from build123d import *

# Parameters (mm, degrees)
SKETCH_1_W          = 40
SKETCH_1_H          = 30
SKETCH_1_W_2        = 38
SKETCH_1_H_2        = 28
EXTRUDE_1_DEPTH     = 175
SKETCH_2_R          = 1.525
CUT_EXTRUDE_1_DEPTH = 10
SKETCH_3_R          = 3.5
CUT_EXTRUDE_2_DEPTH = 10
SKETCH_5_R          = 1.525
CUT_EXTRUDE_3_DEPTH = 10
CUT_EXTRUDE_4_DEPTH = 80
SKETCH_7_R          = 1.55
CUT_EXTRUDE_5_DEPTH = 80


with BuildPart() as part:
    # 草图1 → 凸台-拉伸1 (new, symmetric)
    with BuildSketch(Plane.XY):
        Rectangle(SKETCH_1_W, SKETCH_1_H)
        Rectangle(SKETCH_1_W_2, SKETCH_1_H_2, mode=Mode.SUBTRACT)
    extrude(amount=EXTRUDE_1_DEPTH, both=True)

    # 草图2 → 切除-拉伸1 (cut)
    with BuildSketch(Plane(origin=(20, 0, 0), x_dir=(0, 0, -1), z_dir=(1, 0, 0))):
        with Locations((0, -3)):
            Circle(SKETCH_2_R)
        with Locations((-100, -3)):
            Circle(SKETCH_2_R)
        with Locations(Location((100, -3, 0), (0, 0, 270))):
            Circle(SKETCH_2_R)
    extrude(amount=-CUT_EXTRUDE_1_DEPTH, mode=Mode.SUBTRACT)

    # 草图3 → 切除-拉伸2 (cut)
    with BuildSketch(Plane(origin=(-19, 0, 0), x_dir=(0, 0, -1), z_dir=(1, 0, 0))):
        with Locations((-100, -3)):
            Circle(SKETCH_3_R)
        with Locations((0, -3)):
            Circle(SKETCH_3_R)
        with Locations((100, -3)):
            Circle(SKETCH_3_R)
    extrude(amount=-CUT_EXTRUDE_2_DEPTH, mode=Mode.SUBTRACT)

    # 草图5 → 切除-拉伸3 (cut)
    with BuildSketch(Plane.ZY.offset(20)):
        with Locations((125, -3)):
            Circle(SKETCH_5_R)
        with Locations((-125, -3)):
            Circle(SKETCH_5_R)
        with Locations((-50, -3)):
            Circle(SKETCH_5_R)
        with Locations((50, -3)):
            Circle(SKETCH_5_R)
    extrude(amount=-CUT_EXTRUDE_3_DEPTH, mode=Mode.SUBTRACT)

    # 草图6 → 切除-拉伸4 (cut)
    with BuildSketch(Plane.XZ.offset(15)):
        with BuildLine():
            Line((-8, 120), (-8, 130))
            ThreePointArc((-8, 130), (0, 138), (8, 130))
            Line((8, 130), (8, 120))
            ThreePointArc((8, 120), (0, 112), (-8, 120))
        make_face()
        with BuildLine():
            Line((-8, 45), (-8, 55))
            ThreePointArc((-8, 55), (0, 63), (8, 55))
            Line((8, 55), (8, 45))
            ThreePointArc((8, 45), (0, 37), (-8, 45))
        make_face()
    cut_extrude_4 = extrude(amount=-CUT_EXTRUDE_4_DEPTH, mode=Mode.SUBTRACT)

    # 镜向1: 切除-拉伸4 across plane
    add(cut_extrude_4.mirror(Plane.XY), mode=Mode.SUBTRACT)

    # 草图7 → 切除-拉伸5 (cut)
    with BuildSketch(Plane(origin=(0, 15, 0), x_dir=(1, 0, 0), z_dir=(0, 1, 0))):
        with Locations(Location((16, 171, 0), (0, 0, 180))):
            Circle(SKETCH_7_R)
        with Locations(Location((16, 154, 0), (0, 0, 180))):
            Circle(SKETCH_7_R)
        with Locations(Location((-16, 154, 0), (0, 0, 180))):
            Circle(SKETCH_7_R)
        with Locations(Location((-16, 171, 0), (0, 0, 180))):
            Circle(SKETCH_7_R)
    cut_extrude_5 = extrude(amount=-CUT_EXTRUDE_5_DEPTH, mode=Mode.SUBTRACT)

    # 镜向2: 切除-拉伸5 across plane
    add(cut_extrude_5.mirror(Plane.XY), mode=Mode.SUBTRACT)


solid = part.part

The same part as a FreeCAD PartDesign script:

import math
import FreeCAD as App
import Part
import Sketcher

V = App.Vector
Q = App.Units.Quantity


def add_polygon(sketch, points):
    """Adds a closed chain of lines whose ends are joined by coincident constraints."""
    first, n = sketch.GeometryCount, len(points)
    for a, b in zip(points, points[1:] + points[:1]):
        sketch.addGeometry(Part.LineSegment(App.Vector(*a, 0), App.Vector(*b, 0)), False)
    for i in range(n):
        sketch.addConstraint(Sketcher.Constraint("Coincident", first + i, 2, first + (i + 1) % n, 1))

doc = App.newDocument("Part")
body = doc.addObject("PartDesign::Body", "Body")

sketch1 = body.newObject("Sketcher::SketchObject", "Sketch")
sketch1.AttachmentSupport = (doc.getObject("XY_Plane"), [""])
sketch1.MapMode = "FlatFace"
add_polygon(sketch1, [(-20, 15), (-20, -15), (20, -15), (20, 15)])
add_polygon(sketch1, [(19, -14), (-19, -14), (-19, 14), (19, 14)])
sketch1.addConstraint([
    Sketcher.Constraint("Vertical", 0),
    Sketcher.Constraint("Horizontal", 1),
    Sketcher.Constraint("Vertical", 2),
    Sketcher.Constraint("Horizontal", 3),
    Sketcher.Constraint("Horizontal", 4),
    Sketcher.Constraint("Vertical", 5),
    Sketcher.Constraint("Horizontal", 6),
    Sketcher.Constraint("Vertical", 7),
    Sketcher.Constraint("Symmetric", 0, 2, 2, 2, -1, 1),
    Sketcher.Constraint("Symmetric", 4, 2, 6, 2, -1, 1),
    Sketcher.Constraint("DistanceX", 1, 1, 1, 2, Q("40 mm")),
    Sketcher.Constraint("DistanceX", 4, 2, 4, 1, Q("38 mm")),
    Sketcher.Constraint("DistanceY", 0, 2, 0, 1, Q("30 mm")),
    Sketcher.Constraint("DistanceY", 5, 1, 5, 2, Q("28 mm")),
])
pad1 = body.newObject("PartDesign::Pad", "Pad")
pad1.Profile = sketch1
pad1.Length = 350
pad1.Midplane = True

sketch2 = body.newObject("Sketcher::SketchObject", "Sketch001")
sketch2.AttachmentSupport = (doc.getObject("YZ_Plane"), [""])
sketch2.MapMode = "FlatFace"
sketch2.AttachmentOffset = App.Placement(V(0, 0, 20), App.Rotation())
sketch2.addGeometry([
    Part.Circle(V(-3, 0, 0), V(0, 0, 1), 1.5),
    Part.Circle(V(-3, 100, 0), V(0, 0, 1), 1.5),
    Part.Circle(V(-3, -100, 0), V(0, 0, 1), 1.5),
], False)
sketch2.addConstraint([
    Sketcher.Constraint("Equal", 0, 1),
    Sketcher.Constraint("Equal", 1, 2),
    Sketcher.Constraint("Symmetric", 1, 3, 2, 3, -1),
    Sketcher.Constraint("PointOnObject", 0, 3, -1),
    Sketcher.Constraint("Vertical", 0, 3, 1, 3),
    Sketcher.Constraint("Diameter", 0, Q("3.05 mm")),
    Sketcher.Constraint("DistanceX", 0, 3, -1, 1, Q("3 mm")),
    Sketcher.Constraint("DistanceY", -1, 1, 1, 3, Q("100 mm")),
])
pocket1 = body.newObject("PartDesign::Pocket", "Pocket")
pocket1.Profile = sketch2
pocket1.Length = 10

sketch3 = body.newObject("Sketcher::SketchObject", "Sketch002")
sketch3.AttachmentSupport = (doc.getObject("YZ_Plane"), [""])
sketch3.MapMode = "FlatFace"
sketch3.AttachmentOffset = App.Placement(V(0, 0, -19), App.Rotation())
sketch3.addGeometry([
    Part.Circle(V(-3, 100, 0), V(0, 0, 1), 3.5),
    Part.Circle(V(-3, 0, 0), V(0, 0, 1), 3.5),
    Part.Circle(V(-3, -100, 0), V(0, 0, 1), 3.5),
], False)
sketch3.addConstraint([
    Sketcher.Constraint("Equal", 0, 1),
    Sketcher.Constraint("Equal", 1, 2),
    Sketcher.Constraint("Symmetric", 0, 3, 2, 3, -1),
    Sketcher.Constraint("PointOnObject", 1, 3, -1),
    Sketcher.Constraint("Vertical", 0, 3, 1, 3),
    Sketcher.Constraint("Diameter", 0, Q("7 mm")),
    Sketcher.Constraint("DistanceX", 0, 3, -1, 1, Q("3 mm")),
    Sketcher.Constraint("DistanceY", -1, 1, 0, 3, Q("100 mm")),
])
pocket2 = body.newObject("PartDesign::Pocket", "Pocket001")
pocket2.Profile = sketch3
pocket2.Length = 10

sketch4 = body.newObject("Sketcher::SketchObject", "Sketch003")
sketch4.AttachmentSupport = (doc.getObject("YZ_Plane"), [""])
sketch4.MapMode = "FlatFace"
sketch4.AttachmentOffset = App.Placement(V(0, 0, -20), App.Rotation())
sketch4.addGeometry([
    Part.Circle(V(-3, 125, 0), V(0, 0, 1), 1.5),
    Part.Circle(V(-3, -125, 0), V(0, 0, 1), 1.5),
    Part.Circle(V(-3, -50, 0), V(0, 0, 1), 1.5),
    Part.Circle(V(-3, 50, 0), V(0, 0, 1), 1.5),
], False)
sketch4.addConstraint([
    Sketcher.Constraint("Equal", 0, 1),
    Sketcher.Constraint("Equal", 1, 2),
    Sketcher.Constraint("Equal", 2, 3),
    Sketcher.Constraint("Symmetric", 0, 3, 1, 3, -1),
    Sketcher.Constraint("Symmetric", 2, 3, 3, 3, -1),
    Sketcher.Constraint("Vertical", 1, 3, 2, 3),
    Sketcher.Constraint("Diameter", 0, Q("3.05 mm")),
    Sketcher.Constraint("DistanceX", 0, 3, -1, 1, Q("3 mm")),
    Sketcher.Constraint("DistanceY", -1, 1, 0, 3, Q("125 mm")),
    Sketcher.Constraint("DistanceY", 2, 3, -1, 1, Q("50 mm")),
])
pocket3 = body.newObject("PartDesign::Pocket", "Pocket002")
pocket3.Profile = sketch4
pocket3.Length = 10
pocket3.Reversed = True

sketch5 = body.newObject("Sketcher::SketchObject", "Sketch004")
sketch5.AttachmentSupport = (doc.getObject("XZ_Plane"), [""])
sketch5.MapMode = "FlatFace"
sketch5.AttachmentOffset = App.Placement(V(0, 0, 15), App.Rotation())
sketch5.addGeometry([
    Part.LineSegment(V(-8, 130, 0), V(-8, 120, 0)),
    Part.ArcOfCircle(Part.Circle(V(0, 120, 0), V(0, 0, 1), 8), math.radians(180), math.radians(360)),
    Part.LineSegment(V(8, 120, 0), V(8, 130, 0)),
    Part.ArcOfCircle(Part.Circle(V(0, 130, 0), V(0, 0, 1), 8), math.radians(0), math.radians(180)),
    Part.LineSegment(V(-8, 55, 0), V(-8, 45, 0)),
    Part.ArcOfCircle(Part.Circle(V(0, 45, 0), V(0, 0, 1), 8), math.radians(180), math.radians(360)),
    Part.LineSegment(V(8, 45, 0), V(8, 55, 0)),
    Part.ArcOfCircle(Part.Circle(V(0, 55, 0), V(0, 0, 1), 8), math.radians(0), math.radians(180)),
], False)
sketch5.addConstraint([
    Sketcher.Constraint("Tangent", 0, 2, 1, 1),
    Sketcher.Constraint("Tangent", 1, 2, 2, 1),
    Sketcher.Constraint("Tangent", 2, 2, 3, 1),
    Sketcher.Constraint("Tangent", 3, 2, 0, 1),
    Sketcher.Constraint("Tangent", 4, 2, 5, 1),
    Sketcher.Constraint("Tangent", 5, 2, 6, 1),
    Sketcher.Constraint("Tangent", 6, 2, 7, 1),
    Sketcher.Constraint("Tangent", 7, 2, 4, 1),
    Sketcher.Constraint("Vertical", 0),
    Sketcher.Constraint("Vertical", 2),
    Sketcher.Constraint("Vertical", 4),
    Sketcher.Constraint("Vertical", 6),
    Sketcher.Constraint("Equal", 3, 5),
    Sketcher.Constraint("PointOnObject", 1, 3, -2),
    Sketcher.Constraint("PointOnObject", 5, 3, -2),
    Sketcher.Constraint("Equal", 2, 4),
    Sketcher.Constraint("Radius", 1, Q("8 mm")),
    Sketcher.Constraint("DistanceY", 0, 2, 0, 1, Q("10 mm")),
    Sketcher.Constraint("DistanceY", -1, 1, 1, 3, Q("120 mm")),
    Sketcher.Constraint("DistanceY", -1, 1, 5, 3, Q("45 mm")),
])
pocket4 = body.newObject("PartDesign::Pocket", "Pocket003")
pocket4.Profile = sketch5
pocket4.Length = 80
doc.recompute()

mirrored = body.newObject("PartDesign::Mirrored", "Mirrored")
mirrored.Originals = [pocket4]
mirrored.MirrorPlane = (doc.getObject("XY_Plane"), [""])
body.Tip = mirrored

sketch6 = body.newObject("Sketcher::SketchObject", "Sketch005")
sketch6.AttachmentSupport = (doc.getObject("XZ_Plane"), [""])
sketch6.MapMode = "FlatFace"
sketch6.AttachmentOffset = App.Placement(V(0, 0, -15), App.Rotation())
sketch6.addGeometry([
    Part.Circle(V(16, -171, 0), V(0, 0, 1), 1.6),
    Part.Circle(V(16, -154, 0), V(0, 0, 1), 1.6),
    Part.Circle(V(-16, -154, 0), V(0, 0, 1), 1.6),
    Part.Circle(V(-16, -171, 0), V(0, 0, 1), 1.6),
], False)
sketch6.addConstraint([
    Sketcher.Constraint("Equal", 0, 1),
    Sketcher.Constraint("Equal", 1, 2),
    Sketcher.Constraint("Equal", 2, 3),
    Sketcher.Constraint("Symmetric", 1, 3, 2, 3, -2),
    Sketcher.Constraint("Symmetric", 0, 3, 3, 3, -2),
    Sketcher.Constraint("Vertical", 0, 3, 1, 3),
    Sketcher.Constraint("Diameter", 0, Q("3.1 mm")),
    Sketcher.Constraint("DistanceX", -1, 1, 0, 3, Q("16 mm")),
    Sketcher.Constraint("DistanceY", 0, 3, -1, 1, Q("171 mm")),
    Sketcher.Constraint("DistanceY", 1, 3, -1, 1, Q("154 mm")),
])
pocket5 = body.newObject("PartDesign::Pocket", "Pocket004")
pocket5.Profile = sketch6
pocket5.Length = 80
pocket5.Reversed = True
doc.recompute()

mirrored2 = body.newObject("PartDesign::Mirrored", "Mirrored001")
mirrored2.Originals = [pocket5]
mirrored2.MirrorPlane = (doc.getObject("XY_Plane"), [""])
body.Tip = mirrored2

doc.recompute()
